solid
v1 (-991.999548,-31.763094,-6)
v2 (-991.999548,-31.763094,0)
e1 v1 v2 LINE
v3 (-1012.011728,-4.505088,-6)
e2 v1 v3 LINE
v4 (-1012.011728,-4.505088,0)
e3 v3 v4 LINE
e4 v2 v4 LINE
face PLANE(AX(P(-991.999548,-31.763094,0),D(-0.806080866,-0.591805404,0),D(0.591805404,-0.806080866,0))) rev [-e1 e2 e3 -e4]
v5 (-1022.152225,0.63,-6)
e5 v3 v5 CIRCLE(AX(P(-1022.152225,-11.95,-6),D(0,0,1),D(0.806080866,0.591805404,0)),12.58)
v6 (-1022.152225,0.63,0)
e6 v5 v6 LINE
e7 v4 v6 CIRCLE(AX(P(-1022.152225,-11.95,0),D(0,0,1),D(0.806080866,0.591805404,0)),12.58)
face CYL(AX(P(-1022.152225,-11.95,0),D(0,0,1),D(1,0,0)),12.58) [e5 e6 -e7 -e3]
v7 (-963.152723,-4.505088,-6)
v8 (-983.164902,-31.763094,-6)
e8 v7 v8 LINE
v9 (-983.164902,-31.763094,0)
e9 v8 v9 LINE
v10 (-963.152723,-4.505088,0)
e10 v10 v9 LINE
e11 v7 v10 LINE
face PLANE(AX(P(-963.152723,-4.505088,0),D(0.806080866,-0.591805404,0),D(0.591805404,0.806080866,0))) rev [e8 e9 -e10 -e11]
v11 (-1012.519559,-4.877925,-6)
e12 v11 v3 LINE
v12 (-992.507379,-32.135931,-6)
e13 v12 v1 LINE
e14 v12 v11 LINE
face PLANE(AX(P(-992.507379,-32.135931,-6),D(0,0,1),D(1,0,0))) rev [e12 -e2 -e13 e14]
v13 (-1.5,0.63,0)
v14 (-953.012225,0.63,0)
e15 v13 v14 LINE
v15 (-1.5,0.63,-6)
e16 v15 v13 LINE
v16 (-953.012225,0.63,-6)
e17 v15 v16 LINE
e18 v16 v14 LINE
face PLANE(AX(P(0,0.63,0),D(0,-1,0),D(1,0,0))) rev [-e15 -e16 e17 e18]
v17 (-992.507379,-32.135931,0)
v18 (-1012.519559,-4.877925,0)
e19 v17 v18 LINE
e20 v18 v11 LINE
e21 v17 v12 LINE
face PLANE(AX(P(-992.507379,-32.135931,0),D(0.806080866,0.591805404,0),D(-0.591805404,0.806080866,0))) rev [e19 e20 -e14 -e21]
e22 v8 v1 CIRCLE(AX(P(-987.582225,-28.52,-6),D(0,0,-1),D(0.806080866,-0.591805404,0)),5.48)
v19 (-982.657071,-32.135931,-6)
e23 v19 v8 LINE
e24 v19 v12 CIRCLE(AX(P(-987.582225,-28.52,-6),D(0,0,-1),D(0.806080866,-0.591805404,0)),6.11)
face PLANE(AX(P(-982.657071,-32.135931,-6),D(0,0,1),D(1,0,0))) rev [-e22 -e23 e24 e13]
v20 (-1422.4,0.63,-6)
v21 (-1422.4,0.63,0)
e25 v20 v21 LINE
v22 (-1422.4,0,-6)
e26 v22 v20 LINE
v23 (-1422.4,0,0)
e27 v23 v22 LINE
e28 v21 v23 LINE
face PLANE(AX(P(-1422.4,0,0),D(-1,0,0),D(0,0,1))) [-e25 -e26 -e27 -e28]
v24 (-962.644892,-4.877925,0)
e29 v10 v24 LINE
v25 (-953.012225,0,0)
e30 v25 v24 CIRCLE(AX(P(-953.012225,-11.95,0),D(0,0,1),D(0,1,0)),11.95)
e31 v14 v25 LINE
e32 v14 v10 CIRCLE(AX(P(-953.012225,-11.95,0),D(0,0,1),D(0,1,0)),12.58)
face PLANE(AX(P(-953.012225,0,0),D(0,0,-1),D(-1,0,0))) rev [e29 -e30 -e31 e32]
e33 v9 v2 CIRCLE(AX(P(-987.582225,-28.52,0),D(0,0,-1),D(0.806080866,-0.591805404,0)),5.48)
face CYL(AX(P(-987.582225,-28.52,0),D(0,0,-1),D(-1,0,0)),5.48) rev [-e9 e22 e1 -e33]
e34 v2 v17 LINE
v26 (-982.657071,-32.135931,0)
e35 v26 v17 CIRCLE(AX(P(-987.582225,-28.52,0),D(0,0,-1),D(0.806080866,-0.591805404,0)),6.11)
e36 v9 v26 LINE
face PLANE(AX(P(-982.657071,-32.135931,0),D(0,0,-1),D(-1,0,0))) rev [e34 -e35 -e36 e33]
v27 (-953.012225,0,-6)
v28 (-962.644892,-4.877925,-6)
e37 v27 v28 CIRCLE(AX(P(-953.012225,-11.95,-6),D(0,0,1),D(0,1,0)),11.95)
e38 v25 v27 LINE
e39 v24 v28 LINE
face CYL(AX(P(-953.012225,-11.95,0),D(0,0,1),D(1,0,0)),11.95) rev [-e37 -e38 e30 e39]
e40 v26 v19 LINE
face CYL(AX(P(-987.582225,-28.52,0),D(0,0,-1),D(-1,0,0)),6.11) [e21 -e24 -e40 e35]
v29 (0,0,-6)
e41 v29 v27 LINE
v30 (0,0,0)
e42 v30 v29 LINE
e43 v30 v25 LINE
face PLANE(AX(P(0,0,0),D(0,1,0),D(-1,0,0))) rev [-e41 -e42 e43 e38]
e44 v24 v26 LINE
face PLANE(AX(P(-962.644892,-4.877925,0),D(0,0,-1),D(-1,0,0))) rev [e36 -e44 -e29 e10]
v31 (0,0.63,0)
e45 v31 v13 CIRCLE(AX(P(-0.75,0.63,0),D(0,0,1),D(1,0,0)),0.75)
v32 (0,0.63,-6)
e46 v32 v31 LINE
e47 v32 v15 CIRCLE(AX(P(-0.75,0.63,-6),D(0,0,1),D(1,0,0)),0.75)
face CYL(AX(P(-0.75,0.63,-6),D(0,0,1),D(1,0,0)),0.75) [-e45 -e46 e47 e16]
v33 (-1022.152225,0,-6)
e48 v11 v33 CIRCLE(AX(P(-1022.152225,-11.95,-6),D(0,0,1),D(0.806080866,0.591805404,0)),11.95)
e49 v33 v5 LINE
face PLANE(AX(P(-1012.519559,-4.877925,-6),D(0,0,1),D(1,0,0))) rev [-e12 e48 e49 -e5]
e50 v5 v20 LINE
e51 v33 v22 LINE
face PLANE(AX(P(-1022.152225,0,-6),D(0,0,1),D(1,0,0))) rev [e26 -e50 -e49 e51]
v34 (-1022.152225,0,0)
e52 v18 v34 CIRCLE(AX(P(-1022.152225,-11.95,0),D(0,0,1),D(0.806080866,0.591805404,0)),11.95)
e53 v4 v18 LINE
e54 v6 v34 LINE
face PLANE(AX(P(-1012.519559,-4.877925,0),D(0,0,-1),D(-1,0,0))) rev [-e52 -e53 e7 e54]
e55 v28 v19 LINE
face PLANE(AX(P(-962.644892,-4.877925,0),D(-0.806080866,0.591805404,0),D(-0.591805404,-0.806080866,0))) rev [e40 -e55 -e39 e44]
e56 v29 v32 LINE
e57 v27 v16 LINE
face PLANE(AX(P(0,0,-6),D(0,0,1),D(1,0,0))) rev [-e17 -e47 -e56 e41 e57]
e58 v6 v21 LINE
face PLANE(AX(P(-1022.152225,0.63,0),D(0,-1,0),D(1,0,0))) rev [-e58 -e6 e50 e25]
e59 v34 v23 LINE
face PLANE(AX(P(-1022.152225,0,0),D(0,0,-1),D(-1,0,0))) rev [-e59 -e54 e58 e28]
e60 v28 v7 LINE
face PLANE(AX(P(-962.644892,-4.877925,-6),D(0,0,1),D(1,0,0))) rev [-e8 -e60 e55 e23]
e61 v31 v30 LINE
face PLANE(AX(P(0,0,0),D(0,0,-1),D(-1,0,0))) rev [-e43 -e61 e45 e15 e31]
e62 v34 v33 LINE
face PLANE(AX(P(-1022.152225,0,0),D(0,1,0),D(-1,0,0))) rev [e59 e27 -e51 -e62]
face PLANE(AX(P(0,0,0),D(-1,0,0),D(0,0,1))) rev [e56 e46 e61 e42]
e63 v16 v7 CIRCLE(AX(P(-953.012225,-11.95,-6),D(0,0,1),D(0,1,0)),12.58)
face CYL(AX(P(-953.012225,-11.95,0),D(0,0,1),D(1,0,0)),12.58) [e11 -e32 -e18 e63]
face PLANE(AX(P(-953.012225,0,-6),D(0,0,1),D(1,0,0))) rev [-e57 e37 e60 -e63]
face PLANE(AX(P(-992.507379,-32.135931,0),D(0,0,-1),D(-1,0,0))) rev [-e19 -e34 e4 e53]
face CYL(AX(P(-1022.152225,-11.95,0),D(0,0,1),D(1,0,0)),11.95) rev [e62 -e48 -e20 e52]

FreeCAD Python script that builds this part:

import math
import FreeCAD as App
import Part
import Sketcher

V = App.Vector
Q = App.Units.Quantity

doc = App.newDocument("Part")
body = doc.addObject("PartDesign::Body", "Body")

sketch1 = body.newObject("Sketcher::SketchObject", "Sketch")
sketch1.AttachmentSupport = (doc.getObject("YZ_Plane"), [""])
sketch1.MapMode = "FlatFace"
sketch1.addGeometry([
    Part.LineSegment(V(0.6, 0, 0), V(0, 0, 0)),
    Part.LineSegment(V(0, 0, 0), V(0, -6, 0)),
    Part.LineSegment(V(0, -6, 0), V(0.6, -6, 0)),
    Part.LineSegment(V(0.6, -6, 0), V(0.6, 0, 0)),
], False)
sketch1.addConstraint([
    Sketcher.Constraint("Coincident", 0, 2, 1, 1),
    Sketcher.Constraint("Coincident", 1, 2, 2, 1),
    Sketcher.Constraint("Coincident", 2, 2, 3, 1),
    Sketcher.Constraint("Coincident", 3, 2, 0, 1),
    Sketcher.Constraint("Horizontal", 0),
    Sketcher.Constraint("Vertical", 1),
    Sketcher.Constraint("Horizontal", 2),
    Sketcher.Constraint("Vertical", 3),
    Sketcher.Constraint("Coincident", 0, 2, -1, 1),
    Sketcher.Constraint("DistanceY", 1, 2, 1, 1, Q("6 mm")),
    Sketcher.Constraint("DistanceX", 0, 2, 0, 1, Q("0.63 mm")),
])

sketch2 = body.newObject("Sketcher::SketchObject", "Sketch001")
sketch2.AttachmentSupport = (doc.getObject("XY_Plane"), [""])
sketch2.MapMode = "FlatFace"
sketch2.addGeometry([
    Part.LineSegment(V(0, 0, 0), V(-953, 0, 0)),
    Part.ArcOfCircle(Part.Circle(V(-953, -12, 0), V(0, 0, 1), 12), math.radians(90), math.radians(144)),
    Part.LineSegment(V(-963, -5, 0), V(-983, -32, 0)),
    Part.ArcOfCircle(Part.Circle(V(-988, -29, 0), V(0, 0, 1), 6), math.radians(-144), math.radians(-36)),
    Part.LineSegment(V(-993, -32, 0), V(-1013, -5, 0)),
    Part.ArcOfCircle(Part.Circle(V(-1022, -12, 0), V(0, 0, 1), 12), math.radians(36), math.radians(90)),
    Part.LineSegment(V(-1022, 0, 0), V(-1422, 0, 0)),
], False)
sketch2.addConstraint([
    Sketcher.Constraint("Tangent", 0, 2, 1, 1),
    Sketcher.Constraint("Tangent", 1, 2, 2, 1),
    Sketcher.Constraint("Tangent", 2, 2, 3, 2),
    Sketcher.Constraint("Tangent", 3, 1, 4, 1),
    Sketcher.Constraint("Tangent", 4, 2, 5, 1),
    Sketcher.Constraint("Tangent", 5, 2, 6, 1),
    Sketcher.Constraint("Horizontal", 0),
    Sketcher.Constraint("Horizontal", 6),
    Sketcher.Constraint("Coincident", 0, 1, -1, 1),
    Sketcher.Constraint("Equal", 1, 5),
    Sketcher.Constraint("PointOnObject", 5, 2, -1),
    Sketcher.Constraint("Horizontal", 2, 2, 3, 1),
    Sketcher.Constraint("Radius", 1, Q("11.95 mm")),
    Sketcher.Constraint("Radius", 3, Q("6.11 mm")),
    Sketcher.Constraint("DistanceX", 6, 2, -1, 1, Q("1422.4 mm")),
    Sketcher.Constraint("DistanceY", 3, 3, -1, 1, Q("28.52 mm")),
    Sketcher.Constraint("DistanceX", 3, 3, 1, 3, Q("34.57 mm")),
    Sketcher.Constraint("DistanceX", 0, 2, 0, 1, Q("953.012225 mm")),
])
doc.recompute()

additivepipe = body.newObject("PartDesign::AdditivePipe", "AdditivePipe")
additivepipe.Profile = sketch1
additivepipe.Spine = (sketch2, ["Edge1", "Edge2", "Edge3", "Edge4", "Edge5", "Edge6", "Edge7"])

sketch3 = body.newObject("Sketcher::SketchObject", "Sketch002")
sketch3.AttachmentSupport = (doc.getObject("XY_Plane"), [""])
sketch3.MapMode = "FlatFace"
sketch3.addGeometry([
    Part.LineSegment(V(-1.5, 0.6, 0), V(-1.5, 0, 0)),
    Part.LineSegment(V(-1.5, 0, 0), V(0, 0, 0)),
    Part.LineSegment(V(0, 0, 0), V(0, 0.6, 0)),
    Part.ArcOfCircle(Part.Circle(V(-0.8, 0.6, 0), V(0, 0, 1), 0.8), math.radians(0), math.radians(180)),
], False)
sketch3.addConstraint([
    Sketcher.Constraint("Coincident", 0, 2, 1, 1),
    Sketcher.Constraint("Coincident", 1, 2, 2, 1),
    Sketcher.Constraint("Tangent", 2, 2, 3, 1),
    Sketcher.Constraint("Tangent", 3, 2, 0, 1),
    Sketcher.Constraint("Vertical", 0),
    Sketcher.Constraint("Horizontal", 1),
    Sketcher.Constraint("Vertical", 2),
    Sketcher.Constraint("Coincident", 1, 2, -1, 1),
    Sketcher.Constraint("Radius", 3, Q("0.75 mm")),
    Sketcher.Constraint("DistanceY", 0, 2, 0, 1, Q("0.63 mm")),
])
pad1 = body.newObject("PartDesign::Pad", "Pad")
pad1.Profile = sketch3
pad1.Type = "UpToLast"
pad1.Reversed = True

doc.recompute()
